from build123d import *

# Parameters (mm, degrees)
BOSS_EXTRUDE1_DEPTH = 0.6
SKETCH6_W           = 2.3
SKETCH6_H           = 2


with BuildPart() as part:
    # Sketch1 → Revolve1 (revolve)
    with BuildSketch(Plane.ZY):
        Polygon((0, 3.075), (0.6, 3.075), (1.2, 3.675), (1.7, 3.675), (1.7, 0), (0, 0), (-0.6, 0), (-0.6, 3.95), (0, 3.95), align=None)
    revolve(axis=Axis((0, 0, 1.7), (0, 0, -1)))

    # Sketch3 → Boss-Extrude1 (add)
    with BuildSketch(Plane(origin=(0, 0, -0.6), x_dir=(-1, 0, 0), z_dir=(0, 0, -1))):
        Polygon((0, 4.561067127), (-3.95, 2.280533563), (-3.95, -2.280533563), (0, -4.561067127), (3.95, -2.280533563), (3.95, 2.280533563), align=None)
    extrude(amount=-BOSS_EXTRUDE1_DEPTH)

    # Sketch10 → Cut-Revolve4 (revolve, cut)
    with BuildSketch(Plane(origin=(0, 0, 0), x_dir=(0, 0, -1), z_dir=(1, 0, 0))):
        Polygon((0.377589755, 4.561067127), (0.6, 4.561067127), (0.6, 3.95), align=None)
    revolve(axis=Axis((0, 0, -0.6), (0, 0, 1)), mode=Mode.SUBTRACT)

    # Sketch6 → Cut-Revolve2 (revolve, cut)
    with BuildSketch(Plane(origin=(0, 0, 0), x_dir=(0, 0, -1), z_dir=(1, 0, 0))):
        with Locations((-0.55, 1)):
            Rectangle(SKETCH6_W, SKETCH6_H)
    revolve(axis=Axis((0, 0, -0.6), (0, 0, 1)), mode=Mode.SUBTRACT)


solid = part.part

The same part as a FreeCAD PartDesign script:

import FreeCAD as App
import Part
import Sketcher
Q = App.Units.Quantity

doc = App.newDocument("Part")
body = doc.addObject("PartDesign::Body", "Body")

# Sketch on YZ plane
sketch1 = body.newObject("Sketcher::SketchObject", "Sketch")
sketch1.AttachmentSupport = (doc.getObject("YZ_Plane"), [""])
sketch1.MapMode = "FlatFace"
sketch1.addGeometry([
    Part.LineSegment(App.Vector(3.1, 0.6, 0), App.Vector(3.1, 0, 0)),  # 0
    Part.LineSegment(App.Vector(3.1, 0, 0), App.Vector(4, 0, 0)),  # 1
    Part.LineSegment(App.Vector(4, 0, 0), App.Vector(4, -0.6, 0)),  # 2
    Part.LineSegment(App.Vector(4, -0.6, 0), App.Vector(0, -0.6, 0)),  # 3
    Part.LineSegment(App.Vector(0, -0.6, 0), App.Vector(0, 1.7, 0)),  # 4
    Part.LineSegment(App.Vector(0, 1.7, 0), App.Vector(3.7, 1.7, 0)),  # 5
    Part.LineSegment(App.Vector(3.7, 1.7, 0), App.Vector(3.7, 1.2, 0)),  # 6
    Part.LineSegment(App.Vector(3.7, 1.2, 0), App.Vector(3.1, 0.6, 0)),  # 7
], False)
sketch1.addConstraint([
    Sketcher.Constraint("Coincident", 0, 2, 1, 1),
    Sketcher.Constraint("Coincident", 1, 2, 2, 1),
    Sketcher.Constraint("Coincident", 2, 2, 3, 1),
    Sketcher.Constraint("Coincident", 3, 2, 4, 1),
    Sketcher.Constraint("Coincident", 4, 2, 5, 1),
    Sketcher.Constraint("Coincident", 5, 2, 6, 1),
    Sketcher.Constraint("Coincident", 6, 2, 7, 1),
    Sketcher.Constraint("Coincident", 7, 2, 0, 1),
    Sketcher.Constraint("Vertical", 0),
    Sketcher.Constraint("Horizontal", 1),
    Sketcher.Constraint("Vertical", 2),
    Sketcher.Constraint("Horizontal", 3),
    Sketcher.Constraint("Vertical", 4),
    Sketcher.Constraint("Horizontal", 5),
    Sketcher.Constraint("Vertical", 6),
    Sketcher.Constraint("PointOnObject", 0, 2, -1),
    Sketcher.Constraint("PointOnObject", 3, 2, -2),
    Sketcher.Constraint("Equal", 0, 2),
    Sketcher.Constraint("Angle", 7, Q("-135 deg")),
    Sketcher.Constraint("DistanceY", 0, 2, 0, 1, 0.6),
    Sketcher.Constraint("DistanceY", 4, 1, 4, 2, 2.3),
    Sketcher.Constraint("DistanceY", 6, 2, 6, 1, 0.5),
    Sketcher.Constraint("DistanceX", 3, 2, 3, 1, 3.95),
    Sketcher.Constraint("DistanceX", 1, 1, 1, 2, 0.875),
])
revolution = body.newObject("PartDesign::Revolution", "Revolution")
revolution.Profile = sketch1
revolution.ReferenceAxis = (sketch1, ["V_Axis"])
revolution.Angle = 360

# Sketch on XY plane
sketch2 = body.newObject("Sketcher::SketchObject", "Sketch001")
sketch2.AttachmentSupport = (doc.getObject("XY_Plane"), [""])
sketch2.MapMode = "FlatFace"
sketch2.AttachmentOffset = App.Placement(App.Vector(0, 0, -0.6), App.Rotation())
sketch2.addGeometry([
    Part.LineSegment(App.Vector(0, 4.6, 0), App.Vector(4, 2.3, 0)),  # 0
    Part.LineSegment(App.Vector(4, 2.3, 0), App.Vector(4, -2.3, 0)),  # 1
    Part.LineSegment(App.Vector(4, -2.3, 0), App.Vector(0, -4.6, 0)),  # 2
    Part.LineSegment(App.Vector(0, -4.6, 0), App.Vector(-4, -2.3, 0)),  # 3
    Part.LineSegment(App.Vector(-4, -2.3, 0), App.Vector(-4, 2.3, 0)),  # 4
    Part.LineSegment(App.Vector(-4, 2.3, 0), App.Vector(0, 4.6, 0)),  # 5
], False)
sketch2.addConstraint([
    Sketcher.Constraint("Coincident", 0, 2, 1, 1),
    Sketcher.Constraint("Coincident", 1, 2, 2, 1),
    Sketcher.Constraint("Coincident", 2, 2, 3, 1),
    Sketcher.Constraint("Coincident", 3, 2, 4, 1),
    Sketcher.Constraint("Coincident", 4, 2, 5, 1),
    Sketcher.Constraint("Coincident", 5, 2, 0, 1),
    Sketcher.Constraint("Vertical", 1),
    Sketcher.Constraint("Vertical", 4),
    Sketcher.Constraint("Symmetric", 0, 2, 3, 2, -1, 1),
    Sketcher.Constraint("Symmetric", 2, 2, 5, 2, -1, 1),
    Sketcher.Constraint("PointOnObject", 2, 2, -2),
    Sketcher.Constraint("Parallel", 2, 5),
    Sketcher.Constraint("Horizontal", 1, 2, 3, 2),
    Sketcher.Constraint("Angle", 0, Q("-30 deg")),
    Sketcher.Constraint("DistanceX", 3, 2, 1, 2, 7.9),
    Sketcher.Constraint("DistanceY", 2, 2, 0, 2, 6.841601),
])
pad1 = body.newObject("PartDesign::Pad", "Pad")
pad1.Profile = sketch2
pad1.Length = 0.6

# Sketch on YZ plane
sketch3 = body.newObject("Sketcher::SketchObject", "Sketch002")
sketch3.AttachmentSupport = (doc.getObject("YZ_Plane"), [""])
sketch3.MapMode = "FlatFace"
sketch3.addGeometry([
    Part.LineSegment(App.Vector(4.56, -0.6, 0), App.Vector(4.56, -0.38, 0)),
    Part.LineSegment(App.Vector(4.56, -0.38, 0), App.Vector(3.95, -0.6, 0)),
    Part.LineSegment(App.Vector(3.95, -0.6, 0), App.Vector(4.56, -0.6, 0)),
], False)
sketch3.addConstraint([
    Sketcher.Constraint("Coincident", 0, 2, 1, 1),
    Sketcher.Constraint("Coincident", 1, 2, 2, 1),
    Sketcher.Constraint("Coincident", 2, 2, 0, 1),
    Sketcher.Constraint("Vertical", 0),
    Sketcher.Constraint("Horizontal", 2),
    Sketcher.Constraint("Angle", 1, Q("-160 deg")),
    Sketcher.Constraint("DistanceY", 1, 2, -1, 1, 0.6),
    Sketcher.Constraint("DistanceX", -1, 1, 1, 2, 3.95),
    Sketcher.Constraint("DistanceY", 0, 1, 0, 2, 0.22241),
])
groove = body.newObject("PartDesign::Groove", "Groove")
groove.Profile = sketch3
groove.ReferenceAxis = (sketch3, ["V_Axis"])
groove.Angle = 360

# Sketch on YZ plane
sketch4 = body.newObject("Sketcher::SketchObject", "Sketch003")
sketch4.AttachmentSupport = (doc.getObject("YZ_Plane"), [""])
sketch4.MapMode = "FlatFace"
sketch4.addGeometry([
    Part.LineSegment(App.Vector(2, 1.7, 0), App.Vector(0, 1.7, 0)),
    Part.LineSegment(App.Vector(0, 1.7, 0), App.Vector(0, -0.6, 0)),
    Part.LineSegment(App.Vector(0, -0.6, 0), App.Vector(2, -0.6, 0)),
    Part.LineSegment(App.Vector(2, -0.6, 0), App.Vector(2, 1.7, 0)),
], False)
sketch4.addConstraint([
    Sketcher.Constraint("Coincident", 0, 2, 1, 1),
    Sketcher.Constraint("Coincident", 1, 2, 2, 1),
    Sketcher.Constraint("Coincident", 2, 2, 3, 1),
    Sketcher.Constraint("Coincident", 3, 2, 0, 1),
    Sketcher.Constraint("Horizontal", 0),
    Sketcher.Constraint("Vertical", 1),
    Sketcher.Constraint("Horizontal", 2),
    Sketcher.Constraint("Vertical", 3),
    Sketcher.Constraint("PointOnObject", 0, 2, -2),
    Sketcher.Constraint("DistanceX", 0, 2, 0, 1, 2.0),
    Sketcher.Constraint("DistanceY", 1, 2, 1, 1, 2.3),
    Sketcher.Constraint("DistanceY", -1, 1, 0, 2, 1.7),
])
groove2 = body.newObject("PartDesign::Groove", "Groove001")
groove2.Profile = sketch4
groove2.ReferenceAxis = (sketch4, ["V_Axis"])
groove2.Angle = 360

doc.recompute()
